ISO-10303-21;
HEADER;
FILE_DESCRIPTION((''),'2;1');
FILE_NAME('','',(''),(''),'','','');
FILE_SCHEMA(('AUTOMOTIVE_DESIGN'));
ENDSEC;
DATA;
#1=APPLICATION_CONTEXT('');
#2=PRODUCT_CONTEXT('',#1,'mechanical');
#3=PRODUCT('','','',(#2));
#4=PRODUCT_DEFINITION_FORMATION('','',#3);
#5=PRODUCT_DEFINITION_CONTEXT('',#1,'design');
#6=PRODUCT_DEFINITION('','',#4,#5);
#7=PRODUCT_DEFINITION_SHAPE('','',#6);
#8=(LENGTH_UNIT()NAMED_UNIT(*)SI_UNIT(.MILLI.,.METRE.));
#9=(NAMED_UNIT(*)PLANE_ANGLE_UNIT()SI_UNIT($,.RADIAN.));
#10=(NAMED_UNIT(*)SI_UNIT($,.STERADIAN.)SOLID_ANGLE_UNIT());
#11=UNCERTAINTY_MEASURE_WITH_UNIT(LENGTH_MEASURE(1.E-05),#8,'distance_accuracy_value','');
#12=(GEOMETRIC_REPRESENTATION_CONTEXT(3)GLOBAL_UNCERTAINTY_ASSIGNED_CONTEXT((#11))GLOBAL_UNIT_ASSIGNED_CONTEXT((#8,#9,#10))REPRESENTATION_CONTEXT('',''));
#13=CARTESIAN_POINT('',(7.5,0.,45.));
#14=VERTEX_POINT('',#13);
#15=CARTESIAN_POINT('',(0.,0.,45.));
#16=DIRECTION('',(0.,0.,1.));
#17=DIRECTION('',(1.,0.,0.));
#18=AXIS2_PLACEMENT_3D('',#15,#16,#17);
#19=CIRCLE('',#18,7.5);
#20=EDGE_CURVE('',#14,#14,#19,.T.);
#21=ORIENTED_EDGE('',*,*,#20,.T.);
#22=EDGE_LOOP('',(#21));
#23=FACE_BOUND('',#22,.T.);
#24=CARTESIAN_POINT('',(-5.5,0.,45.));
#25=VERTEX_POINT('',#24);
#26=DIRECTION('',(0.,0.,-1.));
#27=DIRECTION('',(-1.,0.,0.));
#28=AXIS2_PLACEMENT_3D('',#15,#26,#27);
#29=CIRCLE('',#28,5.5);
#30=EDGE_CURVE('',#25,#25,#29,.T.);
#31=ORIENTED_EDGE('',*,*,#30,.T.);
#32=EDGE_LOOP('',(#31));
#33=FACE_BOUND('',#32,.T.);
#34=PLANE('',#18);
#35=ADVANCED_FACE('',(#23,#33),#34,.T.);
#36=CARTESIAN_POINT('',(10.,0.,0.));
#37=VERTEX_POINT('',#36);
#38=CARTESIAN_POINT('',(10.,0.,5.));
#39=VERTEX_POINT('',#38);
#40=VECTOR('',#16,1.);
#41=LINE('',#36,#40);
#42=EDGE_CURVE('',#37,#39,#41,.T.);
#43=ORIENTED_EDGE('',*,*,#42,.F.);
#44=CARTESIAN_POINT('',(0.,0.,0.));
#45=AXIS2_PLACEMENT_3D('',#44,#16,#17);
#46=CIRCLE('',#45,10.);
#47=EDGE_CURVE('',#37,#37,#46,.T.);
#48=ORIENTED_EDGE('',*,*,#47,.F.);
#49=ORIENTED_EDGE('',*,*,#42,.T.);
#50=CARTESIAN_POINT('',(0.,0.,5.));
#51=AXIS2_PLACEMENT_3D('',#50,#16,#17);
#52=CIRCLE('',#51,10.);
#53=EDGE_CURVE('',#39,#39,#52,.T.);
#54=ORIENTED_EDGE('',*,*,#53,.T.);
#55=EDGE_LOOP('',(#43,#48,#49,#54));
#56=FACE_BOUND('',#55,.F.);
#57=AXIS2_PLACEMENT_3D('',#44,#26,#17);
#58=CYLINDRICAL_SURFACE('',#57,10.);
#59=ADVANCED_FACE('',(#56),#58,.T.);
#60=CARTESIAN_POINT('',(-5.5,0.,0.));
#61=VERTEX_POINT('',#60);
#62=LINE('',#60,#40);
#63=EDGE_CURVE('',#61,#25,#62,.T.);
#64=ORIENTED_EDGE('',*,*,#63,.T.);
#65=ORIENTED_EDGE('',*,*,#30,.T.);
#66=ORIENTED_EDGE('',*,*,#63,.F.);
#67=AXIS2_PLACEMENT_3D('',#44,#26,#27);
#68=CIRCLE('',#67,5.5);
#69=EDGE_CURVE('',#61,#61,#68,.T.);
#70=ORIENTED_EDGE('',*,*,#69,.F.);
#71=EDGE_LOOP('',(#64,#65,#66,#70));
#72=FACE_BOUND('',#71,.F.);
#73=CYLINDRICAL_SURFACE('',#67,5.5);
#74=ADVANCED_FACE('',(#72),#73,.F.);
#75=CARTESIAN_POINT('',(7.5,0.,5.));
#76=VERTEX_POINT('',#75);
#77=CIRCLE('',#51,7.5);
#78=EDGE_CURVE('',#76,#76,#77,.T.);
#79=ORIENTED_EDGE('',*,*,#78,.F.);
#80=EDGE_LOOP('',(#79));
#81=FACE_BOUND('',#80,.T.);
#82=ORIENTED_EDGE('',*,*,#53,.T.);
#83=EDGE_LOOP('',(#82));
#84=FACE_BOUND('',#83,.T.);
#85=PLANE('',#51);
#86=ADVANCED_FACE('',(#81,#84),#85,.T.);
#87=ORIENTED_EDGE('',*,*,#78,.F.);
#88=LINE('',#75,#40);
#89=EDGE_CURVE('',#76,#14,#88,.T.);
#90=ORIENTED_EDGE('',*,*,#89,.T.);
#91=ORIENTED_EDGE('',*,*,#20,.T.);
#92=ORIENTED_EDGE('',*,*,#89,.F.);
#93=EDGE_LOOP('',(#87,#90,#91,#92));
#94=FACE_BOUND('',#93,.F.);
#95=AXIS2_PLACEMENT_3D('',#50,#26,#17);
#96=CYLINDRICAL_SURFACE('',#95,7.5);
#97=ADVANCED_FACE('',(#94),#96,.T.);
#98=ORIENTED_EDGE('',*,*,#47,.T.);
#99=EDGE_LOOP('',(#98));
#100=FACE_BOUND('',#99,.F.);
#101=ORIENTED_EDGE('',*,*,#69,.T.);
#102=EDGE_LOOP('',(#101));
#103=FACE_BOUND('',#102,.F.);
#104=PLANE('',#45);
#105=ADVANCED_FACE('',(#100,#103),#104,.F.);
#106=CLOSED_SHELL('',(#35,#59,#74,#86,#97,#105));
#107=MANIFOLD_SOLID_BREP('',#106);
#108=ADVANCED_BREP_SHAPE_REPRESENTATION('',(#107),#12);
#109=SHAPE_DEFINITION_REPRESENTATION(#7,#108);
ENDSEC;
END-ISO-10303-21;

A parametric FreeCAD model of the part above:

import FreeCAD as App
import Part
import Sketcher
from FreeCAD import Vector
Q = App.Units.Quantity

doc = App.newDocument("Part")
body = doc.addObject("PartDesign::Body", "Body")

# Sketch on XY plane
sketch1 = body.newObject("Sketcher::SketchObject", "Sketch")
sketch1.AttachmentSupport = (doc.getObject("XY_Plane"), [""])
sketch1.MapMode = "FlatFace"
sketch1.addGeometry(Part.Circle(Vector(0, 0, 0), Vector(0, 0, 1), 10), False)
sketch1.addConstraint(Sketcher.Constraint("Coincident", 0, 3, -1, 1))
sketch1.addConstraint(Sketcher.Constraint("Diameter", 0, Q("20 mm")))
pad1 = body.newObject("PartDesign::Pad", "Pad")
pad1.Profile = sketch1
pad1.Length = 5

# Sketch on XY plane
sketch2 = body.newObject("Sketcher::SketchObject", "Sketch001")
sketch2.AttachmentSupport = (doc.getObject("XY_Plane"), [""])
sketch2.MapMode = "FlatFace"
sketch2.AttachmentOffset = App.Placement(Vector(0, 0, 5), App.Rotation())
sketch2.addGeometry(Part.Circle(Vector(0, 0, 0), Vector(0, 0, 1), 7.5), False)
sketch2.addConstraint(Sketcher.Constraint("Coincident", 0, 3, -1, 1))
sketch2.addConstraint(Sketcher.Constraint("Diameter", 0, Q("15 mm")))
pad2 = body.newObject("PartDesign::Pad", "Pad001")
pad2.Profile = sketch2
pad2.Length = 40

# Sketch on XY plane
sketch3 = body.newObject("Sketcher::SketchObject", "Sketch002")
sketch3.AttachmentSupport = (doc.getObject("XY_Plane"), [""])
sketch3.MapMode = "FlatFace"
sketch3.addGeometry(Part.Circle(Vector(0, 0, 0), Vector(0, 0, 1), 5.5), False)
sketch3.addConstraint(Sketcher.Constraint("Coincident", 0, 3, -1, 1))
sketch3.addConstraint(Sketcher.Constraint("Diameter", 0, Q("11 mm")))
pocket1 = body.newObject("PartDesign::Pocket", "Pocket")
pocket1.Profile = sketch3
pocket1.Length = 45
pocket1.Reversed = True

doc.recompute()
